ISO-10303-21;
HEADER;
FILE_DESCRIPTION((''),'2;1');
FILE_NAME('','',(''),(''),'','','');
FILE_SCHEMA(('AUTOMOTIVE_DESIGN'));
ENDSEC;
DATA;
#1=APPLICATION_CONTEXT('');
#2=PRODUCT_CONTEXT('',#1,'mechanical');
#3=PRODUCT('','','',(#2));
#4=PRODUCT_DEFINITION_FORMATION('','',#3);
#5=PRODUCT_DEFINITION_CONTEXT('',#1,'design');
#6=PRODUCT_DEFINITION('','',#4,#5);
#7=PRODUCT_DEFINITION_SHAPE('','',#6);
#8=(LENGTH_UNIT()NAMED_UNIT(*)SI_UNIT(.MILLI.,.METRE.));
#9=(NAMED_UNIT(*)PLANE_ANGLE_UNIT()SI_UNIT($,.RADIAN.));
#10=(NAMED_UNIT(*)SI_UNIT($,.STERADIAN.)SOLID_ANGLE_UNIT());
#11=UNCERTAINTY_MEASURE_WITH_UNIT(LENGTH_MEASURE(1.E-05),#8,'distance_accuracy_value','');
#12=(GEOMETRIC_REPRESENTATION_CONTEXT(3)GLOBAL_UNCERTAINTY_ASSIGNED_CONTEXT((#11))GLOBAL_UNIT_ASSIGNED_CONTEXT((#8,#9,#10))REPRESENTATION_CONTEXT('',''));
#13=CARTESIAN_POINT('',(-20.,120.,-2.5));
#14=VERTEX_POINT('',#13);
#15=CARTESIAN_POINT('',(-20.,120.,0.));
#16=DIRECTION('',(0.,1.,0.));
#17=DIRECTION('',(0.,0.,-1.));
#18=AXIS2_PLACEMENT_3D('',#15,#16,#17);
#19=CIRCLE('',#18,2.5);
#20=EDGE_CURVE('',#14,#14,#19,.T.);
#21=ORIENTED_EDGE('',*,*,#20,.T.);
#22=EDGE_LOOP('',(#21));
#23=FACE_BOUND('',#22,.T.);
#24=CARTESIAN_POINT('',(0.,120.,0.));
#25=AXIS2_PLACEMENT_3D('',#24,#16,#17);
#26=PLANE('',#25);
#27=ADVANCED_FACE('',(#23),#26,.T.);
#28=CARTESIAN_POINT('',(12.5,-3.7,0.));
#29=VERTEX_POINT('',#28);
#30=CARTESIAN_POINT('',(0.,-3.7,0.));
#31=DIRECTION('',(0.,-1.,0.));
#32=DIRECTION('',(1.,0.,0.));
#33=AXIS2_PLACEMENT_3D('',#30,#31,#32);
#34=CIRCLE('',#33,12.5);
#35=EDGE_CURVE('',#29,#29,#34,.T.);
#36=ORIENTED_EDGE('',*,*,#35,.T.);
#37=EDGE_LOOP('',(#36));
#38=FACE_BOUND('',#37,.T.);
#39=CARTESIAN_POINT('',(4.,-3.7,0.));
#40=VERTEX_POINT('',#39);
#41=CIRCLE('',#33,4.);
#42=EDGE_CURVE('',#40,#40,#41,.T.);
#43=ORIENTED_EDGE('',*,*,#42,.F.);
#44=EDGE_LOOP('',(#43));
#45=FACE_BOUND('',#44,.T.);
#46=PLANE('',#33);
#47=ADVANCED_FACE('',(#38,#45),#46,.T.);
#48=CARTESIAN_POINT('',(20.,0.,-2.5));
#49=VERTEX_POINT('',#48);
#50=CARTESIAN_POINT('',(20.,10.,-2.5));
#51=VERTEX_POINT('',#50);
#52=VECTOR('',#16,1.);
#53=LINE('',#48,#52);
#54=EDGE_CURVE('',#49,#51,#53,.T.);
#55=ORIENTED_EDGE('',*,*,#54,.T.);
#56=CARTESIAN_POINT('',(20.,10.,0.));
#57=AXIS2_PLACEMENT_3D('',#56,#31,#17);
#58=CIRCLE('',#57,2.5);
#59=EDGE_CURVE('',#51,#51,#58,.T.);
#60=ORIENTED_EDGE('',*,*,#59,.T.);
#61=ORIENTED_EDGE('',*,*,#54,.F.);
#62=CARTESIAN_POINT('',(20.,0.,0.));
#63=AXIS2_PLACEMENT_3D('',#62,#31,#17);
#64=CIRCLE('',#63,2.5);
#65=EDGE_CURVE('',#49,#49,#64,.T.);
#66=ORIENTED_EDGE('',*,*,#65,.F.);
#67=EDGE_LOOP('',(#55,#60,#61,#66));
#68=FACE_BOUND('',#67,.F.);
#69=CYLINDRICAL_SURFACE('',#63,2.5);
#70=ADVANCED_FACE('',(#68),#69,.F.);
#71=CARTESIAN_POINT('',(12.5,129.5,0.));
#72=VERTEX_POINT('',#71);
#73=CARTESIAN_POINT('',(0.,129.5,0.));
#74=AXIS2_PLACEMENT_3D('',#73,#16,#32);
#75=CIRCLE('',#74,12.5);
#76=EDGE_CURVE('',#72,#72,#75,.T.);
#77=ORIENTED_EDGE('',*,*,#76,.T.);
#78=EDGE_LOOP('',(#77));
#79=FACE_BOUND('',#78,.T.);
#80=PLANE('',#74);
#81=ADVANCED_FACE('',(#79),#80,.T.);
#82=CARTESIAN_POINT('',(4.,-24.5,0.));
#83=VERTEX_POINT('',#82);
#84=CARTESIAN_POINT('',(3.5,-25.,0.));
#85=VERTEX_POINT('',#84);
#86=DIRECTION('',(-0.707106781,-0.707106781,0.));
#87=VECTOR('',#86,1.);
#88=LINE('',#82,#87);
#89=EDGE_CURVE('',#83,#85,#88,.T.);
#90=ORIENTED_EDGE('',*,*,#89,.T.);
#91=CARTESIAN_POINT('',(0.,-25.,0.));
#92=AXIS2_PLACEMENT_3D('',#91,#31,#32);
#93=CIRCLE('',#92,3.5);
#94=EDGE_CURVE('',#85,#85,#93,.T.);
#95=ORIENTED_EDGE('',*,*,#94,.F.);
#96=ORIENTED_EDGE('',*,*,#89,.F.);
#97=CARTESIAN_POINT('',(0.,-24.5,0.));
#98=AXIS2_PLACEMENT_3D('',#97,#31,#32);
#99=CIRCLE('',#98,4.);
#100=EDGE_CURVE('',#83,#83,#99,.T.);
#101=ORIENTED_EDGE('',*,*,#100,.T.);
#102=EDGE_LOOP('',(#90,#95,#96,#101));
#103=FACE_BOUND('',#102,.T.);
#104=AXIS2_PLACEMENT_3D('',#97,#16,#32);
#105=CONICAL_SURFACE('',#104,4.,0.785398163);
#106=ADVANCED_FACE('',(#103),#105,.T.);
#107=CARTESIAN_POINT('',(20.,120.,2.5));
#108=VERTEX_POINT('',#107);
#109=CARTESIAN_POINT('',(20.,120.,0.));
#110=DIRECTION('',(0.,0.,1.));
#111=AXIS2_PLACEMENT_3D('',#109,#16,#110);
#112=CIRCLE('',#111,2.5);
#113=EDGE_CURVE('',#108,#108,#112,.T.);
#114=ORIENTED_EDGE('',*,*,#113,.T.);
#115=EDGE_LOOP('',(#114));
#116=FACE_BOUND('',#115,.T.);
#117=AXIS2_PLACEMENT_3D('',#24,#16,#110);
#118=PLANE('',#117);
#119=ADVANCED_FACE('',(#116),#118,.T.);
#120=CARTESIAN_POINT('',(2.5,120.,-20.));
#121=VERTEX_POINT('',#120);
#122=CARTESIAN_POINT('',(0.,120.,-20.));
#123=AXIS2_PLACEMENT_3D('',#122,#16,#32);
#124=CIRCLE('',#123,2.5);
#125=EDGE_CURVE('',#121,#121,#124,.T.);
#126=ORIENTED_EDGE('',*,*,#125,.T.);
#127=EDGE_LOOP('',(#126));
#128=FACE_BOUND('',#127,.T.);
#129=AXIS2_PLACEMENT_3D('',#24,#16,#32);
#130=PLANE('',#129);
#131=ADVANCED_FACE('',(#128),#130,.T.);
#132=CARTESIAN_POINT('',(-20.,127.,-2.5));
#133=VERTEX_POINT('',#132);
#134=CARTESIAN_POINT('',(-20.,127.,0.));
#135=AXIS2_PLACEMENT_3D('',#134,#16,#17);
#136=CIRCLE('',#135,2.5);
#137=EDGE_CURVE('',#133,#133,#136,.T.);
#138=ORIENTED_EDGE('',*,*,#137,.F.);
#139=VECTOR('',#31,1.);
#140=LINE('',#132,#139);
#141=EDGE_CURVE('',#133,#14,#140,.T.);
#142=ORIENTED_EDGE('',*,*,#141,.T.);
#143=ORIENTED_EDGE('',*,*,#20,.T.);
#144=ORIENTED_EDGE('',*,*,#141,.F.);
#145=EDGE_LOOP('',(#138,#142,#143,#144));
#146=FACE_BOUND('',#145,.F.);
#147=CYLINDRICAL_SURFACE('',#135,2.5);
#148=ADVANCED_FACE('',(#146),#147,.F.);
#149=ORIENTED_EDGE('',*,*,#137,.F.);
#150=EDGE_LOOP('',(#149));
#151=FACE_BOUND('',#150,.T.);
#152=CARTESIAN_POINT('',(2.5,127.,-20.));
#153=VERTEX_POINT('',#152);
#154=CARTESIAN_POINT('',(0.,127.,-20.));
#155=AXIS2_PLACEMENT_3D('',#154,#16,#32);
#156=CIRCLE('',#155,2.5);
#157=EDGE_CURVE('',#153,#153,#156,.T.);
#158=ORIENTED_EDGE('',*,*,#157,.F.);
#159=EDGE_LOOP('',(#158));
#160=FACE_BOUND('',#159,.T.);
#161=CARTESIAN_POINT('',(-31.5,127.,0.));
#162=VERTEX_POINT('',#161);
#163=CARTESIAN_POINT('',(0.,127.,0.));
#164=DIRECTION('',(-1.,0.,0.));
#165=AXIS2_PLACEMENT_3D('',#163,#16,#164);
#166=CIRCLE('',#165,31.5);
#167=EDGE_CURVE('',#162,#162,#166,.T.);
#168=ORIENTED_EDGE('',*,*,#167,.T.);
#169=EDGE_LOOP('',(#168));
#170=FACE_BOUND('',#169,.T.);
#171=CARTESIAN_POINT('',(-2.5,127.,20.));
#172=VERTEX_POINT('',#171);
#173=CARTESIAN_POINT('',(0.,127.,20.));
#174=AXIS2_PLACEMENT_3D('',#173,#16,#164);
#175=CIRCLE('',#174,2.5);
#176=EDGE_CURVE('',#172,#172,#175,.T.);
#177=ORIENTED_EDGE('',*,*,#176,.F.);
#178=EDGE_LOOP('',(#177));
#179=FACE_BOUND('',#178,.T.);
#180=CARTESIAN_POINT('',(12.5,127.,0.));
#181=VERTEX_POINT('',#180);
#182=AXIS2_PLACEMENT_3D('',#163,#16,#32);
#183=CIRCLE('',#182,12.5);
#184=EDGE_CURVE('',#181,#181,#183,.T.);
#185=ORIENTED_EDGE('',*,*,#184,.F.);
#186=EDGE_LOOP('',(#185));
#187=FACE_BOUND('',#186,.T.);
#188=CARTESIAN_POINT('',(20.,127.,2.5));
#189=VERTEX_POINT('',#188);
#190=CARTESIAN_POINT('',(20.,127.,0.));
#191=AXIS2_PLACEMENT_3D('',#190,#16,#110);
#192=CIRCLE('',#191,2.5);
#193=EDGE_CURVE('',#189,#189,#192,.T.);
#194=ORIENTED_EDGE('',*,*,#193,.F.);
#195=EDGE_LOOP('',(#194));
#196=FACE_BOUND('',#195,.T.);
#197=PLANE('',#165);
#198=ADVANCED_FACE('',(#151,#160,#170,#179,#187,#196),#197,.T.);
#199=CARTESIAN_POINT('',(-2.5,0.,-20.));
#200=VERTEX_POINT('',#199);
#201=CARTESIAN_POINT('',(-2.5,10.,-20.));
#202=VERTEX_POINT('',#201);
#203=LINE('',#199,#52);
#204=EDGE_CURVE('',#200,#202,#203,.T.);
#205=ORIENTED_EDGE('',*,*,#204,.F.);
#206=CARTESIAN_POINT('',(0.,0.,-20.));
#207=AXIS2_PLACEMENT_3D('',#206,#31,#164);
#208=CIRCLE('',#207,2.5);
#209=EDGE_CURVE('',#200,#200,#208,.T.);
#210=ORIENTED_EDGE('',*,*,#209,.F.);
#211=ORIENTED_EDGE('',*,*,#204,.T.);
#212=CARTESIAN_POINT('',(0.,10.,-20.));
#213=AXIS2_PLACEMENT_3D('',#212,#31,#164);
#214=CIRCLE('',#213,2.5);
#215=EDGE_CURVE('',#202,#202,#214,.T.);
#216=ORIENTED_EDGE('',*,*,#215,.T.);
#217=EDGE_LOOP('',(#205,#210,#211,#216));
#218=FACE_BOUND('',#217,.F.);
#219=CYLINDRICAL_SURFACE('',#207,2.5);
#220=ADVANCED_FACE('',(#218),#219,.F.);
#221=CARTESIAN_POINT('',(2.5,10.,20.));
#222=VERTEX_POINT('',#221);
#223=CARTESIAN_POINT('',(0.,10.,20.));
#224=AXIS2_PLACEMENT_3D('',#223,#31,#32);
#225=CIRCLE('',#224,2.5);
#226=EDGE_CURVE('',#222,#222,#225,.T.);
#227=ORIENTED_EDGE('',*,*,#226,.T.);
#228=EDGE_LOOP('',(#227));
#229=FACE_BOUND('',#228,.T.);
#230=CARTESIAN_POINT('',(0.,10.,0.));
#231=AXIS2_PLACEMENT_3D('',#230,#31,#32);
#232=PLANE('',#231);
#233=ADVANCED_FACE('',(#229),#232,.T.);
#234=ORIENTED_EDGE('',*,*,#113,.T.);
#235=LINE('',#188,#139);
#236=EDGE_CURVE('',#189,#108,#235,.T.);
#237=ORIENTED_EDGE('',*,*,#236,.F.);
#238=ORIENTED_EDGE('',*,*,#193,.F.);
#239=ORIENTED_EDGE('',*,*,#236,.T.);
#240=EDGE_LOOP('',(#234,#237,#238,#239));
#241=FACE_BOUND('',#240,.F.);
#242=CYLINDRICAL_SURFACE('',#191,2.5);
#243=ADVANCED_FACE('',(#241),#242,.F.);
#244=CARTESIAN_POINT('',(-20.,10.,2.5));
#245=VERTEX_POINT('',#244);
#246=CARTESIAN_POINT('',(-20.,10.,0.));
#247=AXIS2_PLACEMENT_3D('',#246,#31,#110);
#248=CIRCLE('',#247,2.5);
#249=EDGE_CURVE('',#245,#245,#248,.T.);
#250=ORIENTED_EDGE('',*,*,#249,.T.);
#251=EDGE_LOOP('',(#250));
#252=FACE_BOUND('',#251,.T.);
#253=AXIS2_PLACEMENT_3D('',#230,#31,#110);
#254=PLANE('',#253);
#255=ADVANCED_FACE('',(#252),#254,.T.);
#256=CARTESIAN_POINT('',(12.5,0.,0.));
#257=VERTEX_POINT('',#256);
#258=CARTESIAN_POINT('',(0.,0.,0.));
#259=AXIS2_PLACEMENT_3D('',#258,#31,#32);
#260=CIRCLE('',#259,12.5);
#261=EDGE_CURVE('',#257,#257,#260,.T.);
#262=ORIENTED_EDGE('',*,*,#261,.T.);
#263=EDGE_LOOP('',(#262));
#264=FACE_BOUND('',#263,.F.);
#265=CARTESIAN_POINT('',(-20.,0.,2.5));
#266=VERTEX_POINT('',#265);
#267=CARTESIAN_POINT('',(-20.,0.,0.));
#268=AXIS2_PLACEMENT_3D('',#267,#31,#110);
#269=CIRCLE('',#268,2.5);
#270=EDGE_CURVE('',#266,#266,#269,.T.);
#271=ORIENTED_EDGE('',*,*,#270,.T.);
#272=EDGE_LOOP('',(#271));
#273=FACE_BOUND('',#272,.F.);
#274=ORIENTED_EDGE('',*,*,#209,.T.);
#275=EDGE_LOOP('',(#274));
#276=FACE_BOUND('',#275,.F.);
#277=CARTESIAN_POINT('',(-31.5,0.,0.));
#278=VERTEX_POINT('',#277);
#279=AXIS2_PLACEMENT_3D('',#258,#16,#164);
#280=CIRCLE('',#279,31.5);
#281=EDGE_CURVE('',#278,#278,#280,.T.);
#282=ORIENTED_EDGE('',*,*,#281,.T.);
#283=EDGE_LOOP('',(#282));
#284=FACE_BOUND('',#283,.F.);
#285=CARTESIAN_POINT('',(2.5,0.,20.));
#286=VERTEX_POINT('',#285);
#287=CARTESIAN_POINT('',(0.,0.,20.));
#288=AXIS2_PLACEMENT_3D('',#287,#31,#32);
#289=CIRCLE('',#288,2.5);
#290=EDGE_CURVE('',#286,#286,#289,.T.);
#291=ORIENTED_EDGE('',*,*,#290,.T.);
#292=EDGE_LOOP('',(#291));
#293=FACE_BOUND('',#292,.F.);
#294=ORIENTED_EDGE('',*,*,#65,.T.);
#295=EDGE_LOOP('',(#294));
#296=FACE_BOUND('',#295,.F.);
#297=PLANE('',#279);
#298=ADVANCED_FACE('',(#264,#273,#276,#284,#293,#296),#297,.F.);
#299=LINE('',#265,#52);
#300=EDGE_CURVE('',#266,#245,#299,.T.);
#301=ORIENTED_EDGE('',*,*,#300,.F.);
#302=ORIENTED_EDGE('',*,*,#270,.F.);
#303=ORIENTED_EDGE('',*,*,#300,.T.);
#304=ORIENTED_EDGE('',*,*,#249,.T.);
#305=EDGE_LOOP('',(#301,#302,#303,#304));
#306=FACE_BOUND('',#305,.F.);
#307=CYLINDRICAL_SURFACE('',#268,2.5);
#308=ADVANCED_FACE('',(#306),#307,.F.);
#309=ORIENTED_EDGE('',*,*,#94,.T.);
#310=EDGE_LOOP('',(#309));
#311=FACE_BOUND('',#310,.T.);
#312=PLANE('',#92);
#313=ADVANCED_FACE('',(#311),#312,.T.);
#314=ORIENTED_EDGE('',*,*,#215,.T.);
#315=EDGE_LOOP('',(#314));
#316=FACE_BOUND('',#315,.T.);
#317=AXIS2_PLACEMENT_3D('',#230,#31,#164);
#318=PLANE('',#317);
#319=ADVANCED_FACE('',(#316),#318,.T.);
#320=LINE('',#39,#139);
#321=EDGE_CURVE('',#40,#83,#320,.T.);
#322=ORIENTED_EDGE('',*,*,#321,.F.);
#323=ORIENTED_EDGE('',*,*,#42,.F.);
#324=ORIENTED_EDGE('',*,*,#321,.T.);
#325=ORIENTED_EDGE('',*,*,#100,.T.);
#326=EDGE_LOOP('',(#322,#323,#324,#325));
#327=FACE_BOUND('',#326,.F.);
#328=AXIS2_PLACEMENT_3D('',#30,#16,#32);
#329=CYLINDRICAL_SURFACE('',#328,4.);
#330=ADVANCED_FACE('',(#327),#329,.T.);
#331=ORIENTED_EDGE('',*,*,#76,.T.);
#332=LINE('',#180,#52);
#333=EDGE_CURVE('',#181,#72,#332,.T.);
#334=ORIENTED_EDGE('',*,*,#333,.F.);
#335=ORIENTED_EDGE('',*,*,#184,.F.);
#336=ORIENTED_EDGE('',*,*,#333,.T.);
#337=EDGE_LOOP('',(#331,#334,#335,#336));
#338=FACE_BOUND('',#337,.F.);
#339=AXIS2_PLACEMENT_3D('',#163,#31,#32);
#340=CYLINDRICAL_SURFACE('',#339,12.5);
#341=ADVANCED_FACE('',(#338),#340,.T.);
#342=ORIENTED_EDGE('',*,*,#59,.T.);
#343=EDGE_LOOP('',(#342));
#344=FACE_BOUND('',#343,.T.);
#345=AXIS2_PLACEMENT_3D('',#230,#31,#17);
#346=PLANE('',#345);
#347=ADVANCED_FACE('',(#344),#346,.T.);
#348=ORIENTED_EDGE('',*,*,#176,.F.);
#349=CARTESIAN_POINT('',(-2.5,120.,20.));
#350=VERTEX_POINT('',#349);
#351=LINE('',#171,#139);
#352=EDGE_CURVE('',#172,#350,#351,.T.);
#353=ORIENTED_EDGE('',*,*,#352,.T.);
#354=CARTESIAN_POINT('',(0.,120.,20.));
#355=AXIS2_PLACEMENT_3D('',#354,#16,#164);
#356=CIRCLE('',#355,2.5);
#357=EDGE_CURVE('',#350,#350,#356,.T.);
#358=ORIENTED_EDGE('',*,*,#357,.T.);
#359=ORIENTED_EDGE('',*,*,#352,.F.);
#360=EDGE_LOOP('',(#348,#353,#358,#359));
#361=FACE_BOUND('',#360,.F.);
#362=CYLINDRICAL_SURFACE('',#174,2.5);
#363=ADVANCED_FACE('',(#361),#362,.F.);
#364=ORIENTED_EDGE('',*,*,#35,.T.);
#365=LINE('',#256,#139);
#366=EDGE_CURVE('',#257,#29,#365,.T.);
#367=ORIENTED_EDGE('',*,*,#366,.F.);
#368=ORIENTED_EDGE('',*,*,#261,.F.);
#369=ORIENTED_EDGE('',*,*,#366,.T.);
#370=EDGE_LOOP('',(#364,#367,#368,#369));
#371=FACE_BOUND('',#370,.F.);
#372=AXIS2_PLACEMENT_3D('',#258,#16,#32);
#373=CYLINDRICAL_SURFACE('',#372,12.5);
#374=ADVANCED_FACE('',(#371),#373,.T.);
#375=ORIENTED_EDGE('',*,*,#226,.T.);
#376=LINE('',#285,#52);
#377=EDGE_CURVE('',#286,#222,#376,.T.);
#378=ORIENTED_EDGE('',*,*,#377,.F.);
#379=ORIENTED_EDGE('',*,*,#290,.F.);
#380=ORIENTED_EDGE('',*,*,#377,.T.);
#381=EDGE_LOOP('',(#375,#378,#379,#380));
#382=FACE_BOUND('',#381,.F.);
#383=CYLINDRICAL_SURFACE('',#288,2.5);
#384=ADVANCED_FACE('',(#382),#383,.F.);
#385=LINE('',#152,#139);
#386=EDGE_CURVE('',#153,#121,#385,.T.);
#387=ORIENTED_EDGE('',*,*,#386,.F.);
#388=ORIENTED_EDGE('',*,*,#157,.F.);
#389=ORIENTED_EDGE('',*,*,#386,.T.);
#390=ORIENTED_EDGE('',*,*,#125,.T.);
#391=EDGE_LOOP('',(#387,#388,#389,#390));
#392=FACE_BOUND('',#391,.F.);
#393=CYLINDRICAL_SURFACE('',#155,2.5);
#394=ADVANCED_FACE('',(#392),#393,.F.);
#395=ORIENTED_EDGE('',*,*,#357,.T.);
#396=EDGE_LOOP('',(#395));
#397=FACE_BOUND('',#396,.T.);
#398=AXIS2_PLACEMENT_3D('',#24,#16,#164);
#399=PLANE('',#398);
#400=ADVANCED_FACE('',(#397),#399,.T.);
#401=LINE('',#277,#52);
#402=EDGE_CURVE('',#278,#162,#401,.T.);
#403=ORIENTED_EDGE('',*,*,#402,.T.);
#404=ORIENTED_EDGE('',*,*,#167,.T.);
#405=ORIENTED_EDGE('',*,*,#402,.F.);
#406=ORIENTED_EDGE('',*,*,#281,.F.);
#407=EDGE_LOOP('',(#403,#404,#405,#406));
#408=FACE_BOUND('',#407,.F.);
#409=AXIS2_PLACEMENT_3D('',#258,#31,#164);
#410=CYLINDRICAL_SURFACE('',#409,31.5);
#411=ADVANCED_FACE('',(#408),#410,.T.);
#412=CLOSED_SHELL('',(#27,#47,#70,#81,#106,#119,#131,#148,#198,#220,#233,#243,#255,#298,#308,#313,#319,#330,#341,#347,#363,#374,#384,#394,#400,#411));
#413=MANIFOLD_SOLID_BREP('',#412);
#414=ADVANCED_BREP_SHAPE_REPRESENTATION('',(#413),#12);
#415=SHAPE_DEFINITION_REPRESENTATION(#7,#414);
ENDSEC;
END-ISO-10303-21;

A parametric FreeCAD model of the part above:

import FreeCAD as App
import Part
import Sketcher

V = App.Vector
Q = App.Units.Quantity


def edges_at(feature, points):
    """Names of the edges that pass closest to the given points."""
    edges = feature.Shape.Edges
    near = lambda p: min(range(len(edges)), key=lambda i: edges[i].distToShape(Part.Vertex(*p))[0])
    return sorted({f"Edge{near(p) + 1}" for p in points})

doc = App.newDocument("Part")
body = doc.addObject("PartDesign::Body", "Body")

sketch1 = doc.addObject("Sketcher::SketchObject", "Sketch")
body.addObject(sketch1)
sketch1.AttachmentSupport = (doc.XZ_Plane, [""])
sketch1.MapMode = "FlatFace"
sketch1.addGeometry(Part.Circle(V(0, 0, 0), V(0, 0, 1), 32), False)
sketch1.addConstraint([
    Sketcher.Constraint("Coincident", 0, 3, -1, 1),
    Sketcher.Constraint("Diameter", 0, Q("63 mm")),
])
pad1 = doc.addObject("PartDesign::Pad", "Pad")
body.addObject(pad1)
pad1.Profile = sketch1
pad1.Length = 127
pad1.Reversed = True

sketch2 = doc.addObject("Sketcher::SketchObject", "Sketch001")
body.addObject(sketch2)
sketch2.AttachmentSupport = (doc.XZ_Plane, [""])
sketch2.MapMode = "FlatFace"
sketch2.AttachmentOffset = App.Placement(V(0, 0, -127), App.Rotation())
sketch2.addGeometry(Part.Circle(V(0, 0, 0), V(0, 0, 1), 12), False)
sketch2.addConstraint([
    Sketcher.Constraint("Coincident", 0, 3, -1, 1),
    Sketcher.Constraint("Diameter", 0, Q("25 mm")),
])
pad2 = doc.addObject("PartDesign::Pad", "Pad001")
body.addObject(pad2)
pad2.Profile = sketch2
pad2.Length = 2.5
pad2.Reversed = True

sketch3 = doc.addObject("Sketcher::SketchObject", "Sketch002")
body.addObject(sketch3)
sketch3.AttachmentSupport = (doc.XZ_Plane, [""])
sketch3.MapMode = "FlatFace"
sketch3.addGeometry(Part.Circle(V(0, 0, 0), V(0, 0, 1), 12), False)
sketch3.addConstraint([
    Sketcher.Constraint("Coincident", 0, 3, -1, 1),
    Sketcher.Constraint("Diameter", 0, Q("25 mm")),
])
pad3 = doc.addObject("PartDesign::Pad", "Pad002")
body.addObject(pad3)
pad3.Profile = sketch3
pad3.Length = 3.7

sketch4 = doc.addObject("Sketcher::SketchObject", "Sketch003")
body.addObject(sketch4)
sketch4.AttachmentSupport = (doc.XZ_Plane, [""])
sketch4.MapMode = "FlatFace"
sketch4.AttachmentOffset = App.Placement(V(0, 0, 3.7), App.Rotation())
sketch4.addGeometry(Part.Circle(V(0, 0, 0), V(0, 0, 1), 4), False)
sketch4.addConstraint([
    Sketcher.Constraint("Coincident", 0, 3, -1, 1),
    Sketcher.Constraint("Diameter", 0, Q("8 mm")),
])
pad4 = doc.addObject("PartDesign::Pad", "Pad003")
body.addObject(pad4)
pad4.Profile = sketch4
pad4.Length = 21.3
doc.recompute()

chamfer = doc.addObject("PartDesign::Chamfer", "Chamfer")
body.addObject(chamfer)
chamfer.Base = (pad4, edges_at(pad4, [(-4, -25, 0)]))
chamfer.Size = 0.5

sketch5 = doc.addObject("Sketcher::SketchObject", "Sketch004")
body.addObject(sketch5)
sketch5.AttachmentSupport = (doc.XZ_Plane, [""])
sketch5.MapMode = "FlatFace"
sketch5.addGeometry(Part.Circle(V(0, 20, 0), V(0, 0, 1), 2.5), False)
sketch5.addConstraint([
    Sketcher.Constraint("PointOnObject", 0, 3, -2),
    Sketcher.Constraint("Diameter", 0, Q("5 mm")),
    Sketcher.Constraint("DistanceY", -1, 1, 0, 3, Q("20 mm")),
])
pocket1 = doc.addObject("PartDesign::Pocket", "Pocket")
body.addObject(pocket1)
pocket1.Profile = sketch5
pocket1.Length = 10
doc.recompute()

polarpattern = doc.addObject("PartDesign::PolarPattern", "PolarPattern")
body.addObject(polarpattern)
polarpattern.Originals = [pocket1]
polarpattern.Axis = (doc.Y_Axis, [""])
polarpattern.Angle = 360
polarpattern.Occurrences = 4
body.Tip = polarpattern

sketch6 = doc.addObject("Sketcher::SketchObject", "Sketch005")
body.addObject(sketch6)
sketch6.AttachmentSupport = (doc.XZ_Plane, [""])
sketch6.MapMode = "FlatFace"
sketch6.AttachmentOffset = App.Placement(V(0, 0, -127), App.Rotation())
sketch6.addGeometry(Part.Circle(V(0, -20, 0), V(0, 0, 1), 2.5), False)
sketch6.addConstraint([
    Sketcher.Constraint("PointOnObject", 0, 3, -2),
    Sketcher.Constraint("Diameter", 0, Q("5 mm")),
    Sketcher.Constraint("DistanceY", 0, 3, -1, 1, Q("20 mm")),
])
pocket2 = doc.addObject("PartDesign::Pocket", "Pocket001")
body.addObject(pocket2)
pocket2.Profile = sketch6
pocket2.Length = 7
pocket2.Reversed = True
doc.recompute()

polarpattern2 = doc.addObject("PartDesign::PolarPattern", "PolarPattern001")
body.addObject(polarpattern2)
polarpattern2.Originals = [pocket2]
polarpattern2.Axis = (doc.Y_Axis, [""])
polarpattern2.Angle = 360
polarpattern2.Occurrences = 4
body.Tip = polarpattern2

doc.recompute()
